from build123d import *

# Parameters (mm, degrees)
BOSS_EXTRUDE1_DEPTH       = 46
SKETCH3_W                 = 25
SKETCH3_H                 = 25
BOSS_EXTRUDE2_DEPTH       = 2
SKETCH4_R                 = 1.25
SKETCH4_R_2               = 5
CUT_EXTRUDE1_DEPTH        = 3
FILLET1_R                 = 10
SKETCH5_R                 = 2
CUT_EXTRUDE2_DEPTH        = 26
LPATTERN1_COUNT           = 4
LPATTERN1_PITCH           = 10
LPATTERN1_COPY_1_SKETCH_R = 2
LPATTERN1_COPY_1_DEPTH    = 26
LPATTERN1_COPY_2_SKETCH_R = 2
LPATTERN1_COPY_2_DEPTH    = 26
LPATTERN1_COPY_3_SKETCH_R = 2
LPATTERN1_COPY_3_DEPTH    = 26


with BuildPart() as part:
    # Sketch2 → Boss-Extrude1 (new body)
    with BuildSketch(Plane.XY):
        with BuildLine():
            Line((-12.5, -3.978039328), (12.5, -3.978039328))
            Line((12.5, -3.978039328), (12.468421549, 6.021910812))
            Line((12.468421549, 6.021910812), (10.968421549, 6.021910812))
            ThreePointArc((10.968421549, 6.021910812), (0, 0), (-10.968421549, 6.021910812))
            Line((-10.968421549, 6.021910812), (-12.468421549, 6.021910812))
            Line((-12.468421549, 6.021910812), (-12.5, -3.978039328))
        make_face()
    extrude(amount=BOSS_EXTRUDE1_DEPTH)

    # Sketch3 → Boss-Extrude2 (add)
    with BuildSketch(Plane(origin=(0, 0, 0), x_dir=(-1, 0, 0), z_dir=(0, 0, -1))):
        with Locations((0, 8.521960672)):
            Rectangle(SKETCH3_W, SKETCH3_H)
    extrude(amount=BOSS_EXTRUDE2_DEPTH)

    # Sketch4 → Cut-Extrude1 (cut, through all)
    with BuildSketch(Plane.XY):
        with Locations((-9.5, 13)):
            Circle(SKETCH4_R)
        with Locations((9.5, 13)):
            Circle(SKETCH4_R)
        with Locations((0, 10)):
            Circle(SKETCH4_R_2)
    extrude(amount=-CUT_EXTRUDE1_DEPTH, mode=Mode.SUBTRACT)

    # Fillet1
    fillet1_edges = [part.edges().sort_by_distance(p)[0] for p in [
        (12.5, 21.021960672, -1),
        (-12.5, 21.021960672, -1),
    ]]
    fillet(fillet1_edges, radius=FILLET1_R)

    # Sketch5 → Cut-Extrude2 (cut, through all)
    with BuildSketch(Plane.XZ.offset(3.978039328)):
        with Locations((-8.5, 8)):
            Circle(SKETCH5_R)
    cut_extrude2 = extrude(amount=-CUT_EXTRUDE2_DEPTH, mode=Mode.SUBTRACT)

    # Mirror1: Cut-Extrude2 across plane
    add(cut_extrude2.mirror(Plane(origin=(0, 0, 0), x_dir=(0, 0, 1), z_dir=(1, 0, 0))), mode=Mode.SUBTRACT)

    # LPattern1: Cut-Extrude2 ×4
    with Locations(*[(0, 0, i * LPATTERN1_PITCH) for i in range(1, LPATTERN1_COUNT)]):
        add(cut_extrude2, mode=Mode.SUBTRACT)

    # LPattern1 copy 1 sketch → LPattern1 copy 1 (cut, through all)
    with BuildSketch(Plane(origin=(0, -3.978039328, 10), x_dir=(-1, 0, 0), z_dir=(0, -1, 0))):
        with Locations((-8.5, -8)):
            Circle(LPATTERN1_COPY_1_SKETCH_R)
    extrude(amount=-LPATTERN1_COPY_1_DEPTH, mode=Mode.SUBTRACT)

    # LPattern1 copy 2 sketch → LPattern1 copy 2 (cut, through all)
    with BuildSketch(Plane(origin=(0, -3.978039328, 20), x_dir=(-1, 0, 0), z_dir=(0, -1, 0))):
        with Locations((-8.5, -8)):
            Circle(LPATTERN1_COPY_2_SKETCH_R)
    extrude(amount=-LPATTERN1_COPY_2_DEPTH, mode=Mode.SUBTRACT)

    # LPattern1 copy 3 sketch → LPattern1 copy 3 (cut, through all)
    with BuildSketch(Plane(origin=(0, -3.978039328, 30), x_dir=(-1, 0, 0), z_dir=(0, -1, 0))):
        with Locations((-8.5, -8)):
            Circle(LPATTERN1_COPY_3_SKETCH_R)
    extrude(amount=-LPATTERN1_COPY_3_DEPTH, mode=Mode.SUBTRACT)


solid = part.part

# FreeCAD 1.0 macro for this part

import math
import FreeCAD as App
import Part
import Sketcher
Q = App.Units.Quantity


def edges_at(feature, points):
    """Names of the edges that pass closest to the given points."""
    edges = feature.Shape.Edges
    near = lambda p: min(range(len(edges)), key=lambda i: edges[i].distToShape(Part.Vertex(*p))[0])
    return sorted({f"Edge{near(p) + 1}" for p in points})


def add_polygon(sketch, points):
    """Adds a closed chain of lines whose ends are joined by coincident constraints."""
    first, n = sketch.GeometryCount, len(points)
    for a, b in zip(points, points[1:] + points[:1]):
        sketch.addGeometry(Part.LineSegment(App.Vector(*a, 0), App.Vector(*b, 0)), False)
    for i in range(n):
        sketch.addConstraint(Sketcher.Constraint("Coincident", first + i, 2, first + (i + 1) % n, 1))

doc = App.newDocument("Part")
body = doc.addObject("PartDesign::Body", "Body")

# Sketch on XY plane
sketch1 = body.newObject("Sketcher::SketchObject", "Sketch")
sketch1.AttachmentSupport = (doc.getObject("XY_Plane"), [""])
sketch1.MapMode = "FlatFace"
sketch1.addGeometry([
    Part.LineSegment(App.Vector(-12.5, -3.978039, 0), App.Vector(12.5, -3.978039, 0)),  # 0
    Part.LineSegment(App.Vector(12.5, -3.978039, 0), App.Vector(12.468422, 6.021911, 0)),  # 1
    Part.LineSegment(App.Vector(12.468422, 6.021911, 0), App.Vector(10.968422, 6.021911, 0)),  # 2
    Part.ArcOfCircle(Part.Circle(App.Vector(0, 13, 0), App.Vector(0, 0, 1), 13), math.radians(-147.535558), math.radians(-32.464442)),  # 3
    Part.LineSegment(App.Vector(-10.968422, 6.021911, 0), App.Vector(-12.468422, 6.021911, 0)),  # 4
    Part.LineSegment(App.Vector(-12.468422, 6.021911, 0), App.Vector(-12.5, -3.978039, 0)),  # 5
], False)
sketch1.addConstraint([
    Sketcher.Constraint("Coincident", 0, 2, 1, 1),
    Sketcher.Constraint("Coincident", 1, 2, 2, 1),
    Sketcher.Constraint("Coincident", 2, 2, 3, 2),
    Sketcher.Constraint("Coincident", 3, 1, 4, 1),
    Sketcher.Constraint("Coincident", 4, 2, 5, 1),
    Sketcher.Constraint("Coincident", 5, 2, 0, 1),
    Sketcher.Constraint("Horizontal", 0),
    Sketcher.Constraint("Horizontal", 2),
    Sketcher.Constraint("Horizontal", 4),
    Sketcher.Constraint("Symmetric", 2, 2, 3, 1, -2),
    Sketcher.Constraint("Equal", 2, 4),
    Sketcher.Constraint("Radius", 3, Q("13 mm")),
    Sketcher.Constraint("DistanceX", 0, 1, 0, 2, Q("25 mm")),
    Sketcher.Constraint("Distance", 1, Q("10 mm")),
    Sketcher.Constraint("Distance", 5, Q("10 mm")),
    Sketcher.Constraint("DistanceX", 2, 2, 2, 1, Q("1.5 mm")),
    Sketcher.Constraint("DistanceY", -1, 1, 3, 3, Q("13 mm")),
    Sketcher.Constraint("DistanceY", 0, 2, -1, 1, Q("3.978039 mm")),
])
pad1 = body.newObject("PartDesign::Pad", "Pad")
pad1.Profile = sketch1
pad1.Length = 46

# Sketch on XY plane
sketch2 = body.newObject("Sketcher::SketchObject", "Sketch001")
sketch2.AttachmentSupport = (doc.getObject("XY_Plane"), [""])
sketch2.MapMode = "FlatFace"
add_polygon(sketch2, [(12.5, 21.021961), (12.5, -3.978039), (-12.5, -3.978039), (-12.5, 21.021961)])  # lines 0-3
sketch2.addConstraint([
    Sketcher.Constraint("Vertical", 0),
    Sketcher.Constraint("Horizontal", 1),
    Sketcher.Constraint("Vertical", 2),
    Sketcher.Constraint("Horizontal", 3),
    Sketcher.Constraint("Equal", 3, 0),
    Sketcher.Constraint("DistanceX", 1, 2, 1, 1, Q("25 mm")),
    Sketcher.Constraint("DistanceX", -1, 1, 0, 2, Q("12.5 mm")),
    Sketcher.Constraint("DistanceY", 0, 2, -1, 1, Q("3.978039 mm")),
])
pad2 = body.newObject("PartDesign::Pad", "Pad001")
pad2.Profile = sketch2
pad2.Length = 2
pad2.Reversed = True

# Sketch on XY plane
sketch3 = body.newObject("Sketcher::SketchObject", "Sketch002")
sketch3.AttachmentSupport = (doc.getObject("XY_Plane"), [""])
sketch3.MapMode = "FlatFace"
sketch3.addGeometry([
    Part.Circle(App.Vector(-9.5, 13, 0), App.Vector(0, 0, 1), 1.25),
    Part.Circle(App.Vector(9.5, 13, 0), App.Vector(0, 0, 1), 1.25),
    Part.Circle(App.Vector(0, 10, 0), App.Vector(0, 0, 1), 5),
], False)
sketch3.addConstraint([
    Sketcher.Constraint("Equal", 0, 1),
    Sketcher.Constraint("Symmetric", 0, 3, 1, 3, -2),
    Sketcher.Constraint("PointOnObject", 2, 3, -2),
    Sketcher.Constraint("Diameter", 2, Q("10 mm")),
    Sketcher.Constraint("Diameter", 0, Q("2.5 mm")),
    Sketcher.Constraint("DistanceY", -1, 1, 0, 3, Q("13 mm")),
    Sketcher.Constraint("DistanceY", -1, 1, 2, 3, Q("10 mm")),
    Sketcher.Constraint("DistanceX", 0, 3, 1, 3, Q("19 mm")),
])
pocket1 = body.newObject("PartDesign::Pocket", "Pocket")
pocket1.Profile = sketch3
pocket1.Type = "ThroughAll"
doc.recompute()

fillet = body.newObject("PartDesign::Fillet", "Fillet")
fillet.Base = (pocket1, edges_at(pocket1, [(12.5, 21.022, -1), (-12.5, 21.022, -1)]))
fillet.Radius = 10

# Sketch on XZ plane
sketch4 = body.newObject("Sketcher::SketchObject", "Sketch003")
sketch4.AttachmentSupport = (doc.getObject("XZ_Plane"), [""])
sketch4.MapMode = "FlatFace"
sketch4.AttachmentOffset = App.Placement(App.Vector(0, 0, 3.978039), App.Rotation())
sketch4.addGeometry(Part.Circle(App.Vector(-8.5, 8, 0), App.Vector(0, 0, 1), 2), False)
sketch4.addConstraint([
    Sketcher.Constraint("Diameter", 0, Q("4 mm")),
    Sketcher.Constraint("DistanceY", -1, 1, 0, 3, Q("8 mm")),
    Sketcher.Constraint("DistanceX", 0, 3, -1, 1, Q("8.5 mm")),
])
pocket2 = body.newObject("PartDesign::Pocket", "Pocket001")
pocket2.Profile = sketch4
pocket2.Type = "ThroughAll"
doc.recompute()

mirrored = body.newObject("PartDesign::Mirrored", "Mirrored")
mirrored.Originals = [pocket2]
mirrored.MirrorPlane = (doc.getObject("YZ_Plane"), [""])
body.Tip = mirrored
doc.recompute()

linearpattern = body.newObject("PartDesign::LinearPattern", "LinearPattern")
linearpattern.Originals = [pocket2]
linearpattern.Direction = (doc.getObject("Z_Axis"), [""])
linearpattern.Mode = "offset"
linearpattern.Offset = 10
linearpattern.Occurrences = 4
body.Tip = linearpattern

# Sketch on XZ plane
sketch5 = body.newObject("Sketcher::SketchObject", "Sketch004")
sketch5.AttachmentSupport = (doc.getObject("XZ_Plane"), [""])
sketch5.MapMode = "FlatFace"
sketch5.AttachmentOffset = App.Placement(App.Vector(0, 0, 3.978039), App.Rotation())
sketch5.addGeometry(Part.Circle(App.Vector(8.5, 18, 0), App.Vector(0, 0, 1), 2), False)
sketch5.addConstraint([
    Sketcher.Constraint("Diameter", 0, Q("4 mm")),
    Sketcher.Constraint("DistanceY", -1, 1, 0, 3, Q("18 mm")),
    Sketcher.Constraint("DistanceX", -1, 1, 0, 3, Q("8.5 mm")),
])
pocket3 = body.newObject("PartDesign::Pocket", "Pocket002")
pocket3.Profile = sketch5
pocket3.Type = "ThroughAll"

# Sketch on XZ plane
sketch6 = body.newObject("Sketcher::SketchObject", "Sketch005")
sketch6.AttachmentSupport = (doc.getObject("XZ_Plane"), [""])
sketch6.MapMode = "FlatFace"
sketch6.AttachmentOffset = App.Placement(App.Vector(0, 0, 3.978039), App.Rotation())
sketch6.addGeometry(Part.Circle(App.Vector(8.5, 28, 0), App.Vector(0, 0, 1), 2), False)
sketch6.addConstraint([
    Sketcher.Constraint("Diameter", 0, Q("4 mm")),
    Sketcher.Constraint("DistanceY", -1, 1, 0, 3, Q("28 mm")),
    Sketcher.Constraint("DistanceX", -1, 1, 0, 3, Q("8.5 mm")),
])
pocket4 = body.newObject("PartDesign::Pocket", "Pocket003")
pocket4.Profile = sketch6
pocket4.Type = "ThroughAll"

# Sketch on XZ plane
sketch7 = body.newObject("Sketcher::SketchObject", "Sketch006")
sketch7.AttachmentSupport = (doc.getObject("XZ_Plane"), [""])
sketch7.MapMode = "FlatFace"
sketch7.AttachmentOffset = App.Placement(App.Vector(0, 0, 3.978039), App.Rotation())
sketch7.addGeometry(Part.Circle(App.Vector(8.5, 38, 0), App.Vector(0, 0, 1), 2), False)
sketch7.addConstraint([
    Sketcher.Constraint("Diameter", 0, Q("4 mm")),
    Sketcher.Constraint("DistanceY", -1, 1, 0, 3, Q("38 mm")),
    Sketcher.Constraint("DistanceX", -1, 1, 0, 3, Q("8.5 mm")),
])
pocket5 = body.newObject("PartDesign::Pocket", "Pocket004")
pocket5.Profile = sketch7
pocket5.Type = "ThroughAll"

doc.recompute()
